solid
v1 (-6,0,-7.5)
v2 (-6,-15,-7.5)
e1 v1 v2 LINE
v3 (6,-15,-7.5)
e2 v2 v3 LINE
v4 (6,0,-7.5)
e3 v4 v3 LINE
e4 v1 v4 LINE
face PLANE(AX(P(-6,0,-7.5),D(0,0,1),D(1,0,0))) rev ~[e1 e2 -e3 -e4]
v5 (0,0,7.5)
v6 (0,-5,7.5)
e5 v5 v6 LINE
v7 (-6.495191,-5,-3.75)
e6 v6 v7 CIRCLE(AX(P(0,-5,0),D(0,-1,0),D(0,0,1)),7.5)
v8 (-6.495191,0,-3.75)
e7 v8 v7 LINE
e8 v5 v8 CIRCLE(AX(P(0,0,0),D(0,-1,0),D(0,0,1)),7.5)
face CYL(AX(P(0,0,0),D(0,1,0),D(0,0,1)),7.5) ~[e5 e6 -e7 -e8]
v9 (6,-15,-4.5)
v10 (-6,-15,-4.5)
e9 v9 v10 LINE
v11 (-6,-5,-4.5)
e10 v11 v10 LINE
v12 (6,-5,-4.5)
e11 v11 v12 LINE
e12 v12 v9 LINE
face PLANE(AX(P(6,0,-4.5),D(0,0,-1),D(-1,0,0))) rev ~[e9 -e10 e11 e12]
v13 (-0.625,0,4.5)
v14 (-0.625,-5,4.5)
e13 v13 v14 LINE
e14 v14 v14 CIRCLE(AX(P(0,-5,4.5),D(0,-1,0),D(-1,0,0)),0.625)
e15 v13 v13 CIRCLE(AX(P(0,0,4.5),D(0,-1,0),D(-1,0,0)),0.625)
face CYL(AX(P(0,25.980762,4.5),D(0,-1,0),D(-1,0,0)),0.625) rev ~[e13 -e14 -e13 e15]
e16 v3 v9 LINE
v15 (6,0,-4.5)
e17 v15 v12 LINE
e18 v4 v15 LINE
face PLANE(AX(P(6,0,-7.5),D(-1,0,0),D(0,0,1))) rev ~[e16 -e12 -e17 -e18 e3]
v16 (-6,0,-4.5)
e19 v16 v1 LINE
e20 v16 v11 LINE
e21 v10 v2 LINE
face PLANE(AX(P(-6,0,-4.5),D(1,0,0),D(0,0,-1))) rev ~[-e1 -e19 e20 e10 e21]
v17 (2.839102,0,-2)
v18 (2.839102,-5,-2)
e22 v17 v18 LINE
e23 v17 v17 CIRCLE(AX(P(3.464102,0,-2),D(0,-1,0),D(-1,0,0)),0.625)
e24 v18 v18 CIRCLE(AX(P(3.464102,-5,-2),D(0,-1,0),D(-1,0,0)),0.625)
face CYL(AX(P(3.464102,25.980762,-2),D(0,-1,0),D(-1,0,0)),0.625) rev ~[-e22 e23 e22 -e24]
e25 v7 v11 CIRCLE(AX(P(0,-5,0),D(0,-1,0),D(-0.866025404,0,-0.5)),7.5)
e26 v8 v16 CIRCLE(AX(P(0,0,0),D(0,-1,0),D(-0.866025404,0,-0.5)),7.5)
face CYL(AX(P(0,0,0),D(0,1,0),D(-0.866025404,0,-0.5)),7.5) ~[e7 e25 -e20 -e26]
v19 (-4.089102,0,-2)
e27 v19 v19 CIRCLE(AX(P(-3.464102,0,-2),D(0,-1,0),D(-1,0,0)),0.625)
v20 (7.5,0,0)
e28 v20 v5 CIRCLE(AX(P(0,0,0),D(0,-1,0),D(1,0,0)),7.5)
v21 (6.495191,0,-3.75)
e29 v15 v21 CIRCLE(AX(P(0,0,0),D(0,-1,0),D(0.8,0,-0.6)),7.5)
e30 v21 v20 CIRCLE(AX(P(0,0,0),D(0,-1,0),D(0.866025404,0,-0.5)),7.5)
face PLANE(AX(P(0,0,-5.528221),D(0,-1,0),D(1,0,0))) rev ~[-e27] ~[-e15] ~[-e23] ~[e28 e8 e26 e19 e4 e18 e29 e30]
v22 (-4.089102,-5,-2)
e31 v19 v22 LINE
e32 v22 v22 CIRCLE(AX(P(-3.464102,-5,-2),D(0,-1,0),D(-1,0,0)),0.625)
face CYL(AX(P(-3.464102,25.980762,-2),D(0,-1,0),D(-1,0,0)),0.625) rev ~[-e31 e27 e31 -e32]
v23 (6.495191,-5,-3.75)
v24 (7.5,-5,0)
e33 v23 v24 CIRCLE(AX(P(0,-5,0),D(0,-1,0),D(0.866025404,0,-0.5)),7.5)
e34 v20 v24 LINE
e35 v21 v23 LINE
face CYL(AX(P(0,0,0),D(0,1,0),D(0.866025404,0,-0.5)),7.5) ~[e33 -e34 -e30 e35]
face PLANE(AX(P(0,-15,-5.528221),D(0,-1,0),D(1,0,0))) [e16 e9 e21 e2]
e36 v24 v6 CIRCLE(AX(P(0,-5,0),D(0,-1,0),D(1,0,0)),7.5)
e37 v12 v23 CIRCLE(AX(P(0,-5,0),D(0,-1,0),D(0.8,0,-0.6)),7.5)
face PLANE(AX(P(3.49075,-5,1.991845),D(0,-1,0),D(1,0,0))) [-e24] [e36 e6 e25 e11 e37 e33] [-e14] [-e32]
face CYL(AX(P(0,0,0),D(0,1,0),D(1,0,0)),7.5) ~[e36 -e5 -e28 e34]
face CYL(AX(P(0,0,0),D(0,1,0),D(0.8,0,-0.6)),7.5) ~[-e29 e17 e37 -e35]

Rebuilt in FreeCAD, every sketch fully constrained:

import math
import FreeCAD as App
import Part
import Sketcher

V = App.Vector


def add_polygon(sketch, points):
    """Adds a closed chain of lines whose ends are joined by coincident constraints."""
    first, n = sketch.GeometryCount, len(points)
    for a, b in zip(points, points[1:] + points[:1]):
        sketch.addGeometry(Part.LineSegment(App.Vector(*a, 0), App.Vector(*b, 0)), False)
    for i in range(n):
        sketch.addConstraint(Sketcher.Constraint("Coincident", first + i, 2, first + (i + 1) % n, 1))

doc = App.newDocument("Part")
body = doc.addObject("PartDesign::Body", "Body")

# Sketch on XZ plane
sketch1 = body.newObject("Sketcher::SketchObject", "Sketch")
sketch1.AttachmentSupport = (doc.getObject("XZ_Plane"), [""])
sketch1.MapMode = "FlatFace"
sketch1.addGeometry([
    Part.ArcOfCircle(Part.Circle(V(0, 0, 0), V(0, 0, 1), 7.5), math.radians(-30), math.radians(0)),  # 0
    Part.ArcOfCircle(Part.Circle(V(0, 0, 0), V(0, 0, 1), 7.5), math.radians(0), math.radians(90)),  # 1
    Part.ArcOfCircle(Part.Circle(V(0, 0, 0), V(0, 0, 1), 7.5), math.radians(90), math.radians(210)),  # 2
    Part.ArcOfCircle(Part.Circle(V(0, 0, 0), V(0, 0, 1), 7.5), math.radians(-150), math.radians(-143.13)),  # 3
    Part.LineSegment(V(-6, -4.5, 0), V(6, -4.5, 0)),  # 4
    Part.ArcOfCircle(Part.Circle(V(0, 0, 0), V(0, 0, 1), 7.5), math.radians(-36.87), math.radians(-30)),  # 5
], False)
sketch1.addConstraint([
    Sketcher.Constraint("Tangent", 0, 2, 1, 1),
    Sketcher.Constraint("Tangent", 1, 2, 2, 1),
    Sketcher.Constraint("Tangent", 2, 2, 3, 1),
    Sketcher.Constraint("Coincident", 3, 2, 4, 1),
    Sketcher.Constraint("Coincident", 4, 2, 5, 1),
    Sketcher.Constraint("Tangent", 5, 2, 0, 1),
    Sketcher.Constraint("Horizontal", 4),
    Sketcher.Constraint("Coincident", 0, 3, -1, 1),
    Sketcher.Constraint("Coincident", 2, 3, -1, 1),
    Sketcher.Constraint("Equal", 2, 3),
    Sketcher.Constraint("Equal", 3, 5),
    Sketcher.Constraint("PointOnObject", 0, 2, -1),
    Sketcher.Constraint("PointOnObject", 1, 2, -2),
    Sketcher.Constraint("Horizontal", 2, 2, 5, 2),
    Sketcher.Constraint("Radius", 0, 7.5),
    Sketcher.Constraint("DistanceX", 4, 1, 4, 2, 12.0),
    Sketcher.Constraint("DistanceY", 2, 2, -1, 1, 3.75),
])
pad1 = body.newObject("PartDesign::Pad", "Pad")
pad1.Profile = sketch1
pad1.Length = 5

# Sketch on XZ plane
sketch2 = body.newObject("Sketcher::SketchObject", "Sketch001")
sketch2.AttachmentSupport = (doc.getObject("XZ_Plane"), [""])
sketch2.MapMode = "FlatFace"
add_polygon(sketch2, [(6, -4.5), (-6, -4.5), (-6, -7.5), (6, -7.5)])  # lines 0-3
sketch2.addConstraint([
    Sketcher.Constraint("Horizontal", 0),
    Sketcher.Constraint("Vertical", 1),
    Sketcher.Constraint("Horizontal", 2),
    Sketcher.Constraint("Vertical", 3),
    Sketcher.Constraint("DistanceX", 0, 2, 0, 1, 12.0),
    Sketcher.Constraint("DistanceY", 1, 2, 1, 1, 3.0),
    Sketcher.Constraint("DistanceX", 0, 2, -1, 1, 6.0),
    Sketcher.Constraint("DistanceY", 0, 2, -1, 1, 4.5),
])
pad2 = body.newObject("PartDesign::Pad", "Pad001")
pad2.Profile = sketch2
pad2.Length = 15

# Sketch on XZ plane
sketch3 = body.newObject("Sketcher::SketchObject", "Sketch002")
sketch3.AttachmentSupport = (doc.getObject("XZ_Plane"), [""])
sketch3.MapMode = "FlatFace"
sketch3.addGeometry([
    Part.Circle(V(3.5, -2, 0), V(0, 0, 1), 0.6),
    Part.Circle(V(-3.5, -2, 0), V(0, 0, 1), 0.6),
    Part.Circle(V(0, 4.5, 0), V(0, 0, 1), 0.6),
], False)
sketch3.addConstraint([
    Sketcher.Constraint("Equal", 0, 1),
    Sketcher.Constraint("Equal", 1, 2),
    Sketcher.Constraint("Symmetric", 0, 3, 1, 3, -2),
    Sketcher.Constraint("PointOnObject", 2, 3, -2),
    Sketcher.Constraint("Diameter", 0, 1.25),
    Sketcher.Constraint("DistanceY", 0, 3, -1, 1, 2.0),
    Sketcher.Constraint("DistanceY", -1, 1, 2, 3, 4.5),
    Sketcher.Constraint("DistanceX", -1, 1, 0, 3, 3.464102),
])
doc.recompute()
hole = body.newObject("PartDesign::Hole", "Hole")
hole.Profile = sketch3
hole.ThreadType = "None"
hole.Diameter = 1.25
hole.DepthType = "ThroughAll"
hole.Reversed = True

doc.recompute()
